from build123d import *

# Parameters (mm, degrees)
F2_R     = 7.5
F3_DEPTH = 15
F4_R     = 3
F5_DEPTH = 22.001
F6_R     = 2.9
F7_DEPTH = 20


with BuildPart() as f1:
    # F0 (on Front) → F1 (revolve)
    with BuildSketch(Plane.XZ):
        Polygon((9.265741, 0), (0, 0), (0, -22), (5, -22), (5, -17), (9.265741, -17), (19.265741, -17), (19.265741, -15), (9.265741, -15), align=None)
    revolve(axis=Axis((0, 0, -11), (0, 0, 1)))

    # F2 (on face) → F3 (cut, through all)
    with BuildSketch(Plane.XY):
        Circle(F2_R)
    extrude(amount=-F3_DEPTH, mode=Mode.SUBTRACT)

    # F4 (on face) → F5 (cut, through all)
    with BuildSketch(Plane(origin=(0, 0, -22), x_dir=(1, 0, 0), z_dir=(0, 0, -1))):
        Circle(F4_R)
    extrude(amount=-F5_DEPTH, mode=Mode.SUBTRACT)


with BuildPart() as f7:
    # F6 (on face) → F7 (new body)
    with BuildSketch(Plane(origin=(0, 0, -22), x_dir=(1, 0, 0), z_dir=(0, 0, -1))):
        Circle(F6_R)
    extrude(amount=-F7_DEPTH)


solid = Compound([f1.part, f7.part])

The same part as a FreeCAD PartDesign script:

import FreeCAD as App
import Part
import Sketcher

V = App.Vector

doc = App.newDocument("Part")
body = doc.addObject("PartDesign::Body", "Body")

# Sketch on XZ plane
sketch1 = body.newObject("Sketcher::SketchObject", "Sketch")
sketch1.AttachmentSupport = (doc.getObject("XZ_Plane"), [""])
sketch1.MapMode = "FlatFace"
sketch1.addGeometry([
    Part.LineSegment(V(9.3, 0, 0), V(0, 0, 0)),  # 0
    Part.LineSegment(V(0, 0, 0), V(0, -22, 0)),  # 1
    Part.LineSegment(V(0, -22, 0), V(5, -22, 0)),  # 2
    Part.LineSegment(V(5, -22, 0), V(5, -17, 0)),  # 3
    Part.LineSegment(V(5, -17, 0), V(19.3, -17, 0)),  # 4
    Part.LineSegment(V(19.3, -17, 0), V(19.3, -15, 0)),  # 5
    Part.LineSegment(V(19.3, -15, 0), V(9.3, -15, 0)),  # 6
    Part.LineSegment(V(9.3, -15, 0), V(9.3, 0, 0)),  # 7
], False)
sketch1.addConstraint([
    Sketcher.Constraint("Coincident", 0, 2, 1, 1),
    Sketcher.Constraint("Coincident", 1, 2, 2, 1),
    Sketcher.Constraint("Coincident", 2, 2, 3, 1),
    Sketcher.Constraint("Coincident", 3, 2, 4, 1),
    Sketcher.Constraint("Coincident", 4, 2, 5, 1),
    Sketcher.Constraint("Coincident", 5, 2, 6, 1),
    Sketcher.Constraint("Coincident", 6, 2, 7, 1),
    Sketcher.Constraint("Coincident", 7, 2, 0, 1),
    Sketcher.Constraint("Horizontal", 0),
    Sketcher.Constraint("Vertical", 1),
    Sketcher.Constraint("Horizontal", 2),
    Sketcher.Constraint("Vertical", 3),
    Sketcher.Constraint("Horizontal", 4),
    Sketcher.Constraint("Vertical", 5),
    Sketcher.Constraint("Horizontal", 6),
    Sketcher.Constraint("Vertical", 7),
    Sketcher.Constraint("Coincident", 0, 2, -1, 1),
    Sketcher.Constraint("Equal", 2, 3),
    Sketcher.Constraint("DistanceX", 2, 1, 2, 2, 5.0),
    Sketcher.Constraint("DistanceX", 6, 2, 6, 1, 10.0),
    Sketcher.Constraint("DistanceY", 1, 2, 1, 1, 22.0),
    Sketcher.Constraint("DistanceY", 5, 1, 5, 2, 2.0),
    Sketcher.Constraint("DistanceX", 0, 2, 0, 1, 9.265741),
])
revolution = body.newObject("PartDesign::Revolution", "Revolution")
revolution.Profile = sketch1
revolution.ReferenceAxis = (sketch1, ["V_Axis"])
revolution.Angle = 360

# Sketch on XY plane
sketch2 = body.newObject("Sketcher::SketchObject", "Sketch001")
sketch2.AttachmentSupport = (doc.getObject("XY_Plane"), [""])
sketch2.MapMode = "FlatFace"
sketch2.addGeometry(Part.Circle(V(0, 0, 0), V(0, 0, 1), 8), False)
sketch2.addConstraint([
    Sketcher.Constraint("Coincident", 0, 3, -1, 1),
    Sketcher.Constraint("Diameter", 0, 15.0),
])
pocket1 = body.newObject("PartDesign::Pocket", "Pocket")
pocket1.Profile = sketch2
pocket1.Length = 15

# Sketch on XY plane
sketch3 = body.newObject("Sketcher::SketchObject", "Sketch002")
sketch3.AttachmentSupport = (doc.getObject("XY_Plane"), [""])
sketch3.MapMode = "FlatFace"
sketch3.AttachmentOffset = App.Placement(V(0, 0, -22), App.Rotation())
sketch3.addGeometry(Part.Circle(V(0, 0, 0), V(0, 0, 1), 3), False)
sketch3.addConstraint([
    Sketcher.Constraint("Coincident", 0, 3, -1, 1),
    Sketcher.Constraint("Diameter", 0, 6.0),
])
pocket2 = body.newObject("PartDesign::Pocket", "Pocket001")
pocket2.Profile = sketch3
pocket2.Type = "ThroughAll"
pocket2.Reversed = True
body2 = doc.addObject("PartDesign::Body", "Body001")

# Sketch on XY plane
sketch4 = body2.newObject("Sketcher::SketchObject", "Sketch003")
sketch4.AttachmentSupport = (doc.getObject("XY_Plane001"), [""])
sketch4.MapMode = "FlatFace"
sketch4.AttachmentOffset = App.Placement(V(0, 0, -22), App.Rotation())
sketch4.addGeometry(Part.Circle(V(0, 0, 0), V(0, 0, 1), 2.9), False)
sketch4.addConstraint([
    Sketcher.Constraint("Coincident", 0, 3, -1, 1),
    Sketcher.Constraint("Diameter", 0, 5.8),
])
pad1 = body2.newObject("PartDesign::Pad", "Pad")
pad1.Profile = sketch4
pad1.Length = 20

doc.recompute()
